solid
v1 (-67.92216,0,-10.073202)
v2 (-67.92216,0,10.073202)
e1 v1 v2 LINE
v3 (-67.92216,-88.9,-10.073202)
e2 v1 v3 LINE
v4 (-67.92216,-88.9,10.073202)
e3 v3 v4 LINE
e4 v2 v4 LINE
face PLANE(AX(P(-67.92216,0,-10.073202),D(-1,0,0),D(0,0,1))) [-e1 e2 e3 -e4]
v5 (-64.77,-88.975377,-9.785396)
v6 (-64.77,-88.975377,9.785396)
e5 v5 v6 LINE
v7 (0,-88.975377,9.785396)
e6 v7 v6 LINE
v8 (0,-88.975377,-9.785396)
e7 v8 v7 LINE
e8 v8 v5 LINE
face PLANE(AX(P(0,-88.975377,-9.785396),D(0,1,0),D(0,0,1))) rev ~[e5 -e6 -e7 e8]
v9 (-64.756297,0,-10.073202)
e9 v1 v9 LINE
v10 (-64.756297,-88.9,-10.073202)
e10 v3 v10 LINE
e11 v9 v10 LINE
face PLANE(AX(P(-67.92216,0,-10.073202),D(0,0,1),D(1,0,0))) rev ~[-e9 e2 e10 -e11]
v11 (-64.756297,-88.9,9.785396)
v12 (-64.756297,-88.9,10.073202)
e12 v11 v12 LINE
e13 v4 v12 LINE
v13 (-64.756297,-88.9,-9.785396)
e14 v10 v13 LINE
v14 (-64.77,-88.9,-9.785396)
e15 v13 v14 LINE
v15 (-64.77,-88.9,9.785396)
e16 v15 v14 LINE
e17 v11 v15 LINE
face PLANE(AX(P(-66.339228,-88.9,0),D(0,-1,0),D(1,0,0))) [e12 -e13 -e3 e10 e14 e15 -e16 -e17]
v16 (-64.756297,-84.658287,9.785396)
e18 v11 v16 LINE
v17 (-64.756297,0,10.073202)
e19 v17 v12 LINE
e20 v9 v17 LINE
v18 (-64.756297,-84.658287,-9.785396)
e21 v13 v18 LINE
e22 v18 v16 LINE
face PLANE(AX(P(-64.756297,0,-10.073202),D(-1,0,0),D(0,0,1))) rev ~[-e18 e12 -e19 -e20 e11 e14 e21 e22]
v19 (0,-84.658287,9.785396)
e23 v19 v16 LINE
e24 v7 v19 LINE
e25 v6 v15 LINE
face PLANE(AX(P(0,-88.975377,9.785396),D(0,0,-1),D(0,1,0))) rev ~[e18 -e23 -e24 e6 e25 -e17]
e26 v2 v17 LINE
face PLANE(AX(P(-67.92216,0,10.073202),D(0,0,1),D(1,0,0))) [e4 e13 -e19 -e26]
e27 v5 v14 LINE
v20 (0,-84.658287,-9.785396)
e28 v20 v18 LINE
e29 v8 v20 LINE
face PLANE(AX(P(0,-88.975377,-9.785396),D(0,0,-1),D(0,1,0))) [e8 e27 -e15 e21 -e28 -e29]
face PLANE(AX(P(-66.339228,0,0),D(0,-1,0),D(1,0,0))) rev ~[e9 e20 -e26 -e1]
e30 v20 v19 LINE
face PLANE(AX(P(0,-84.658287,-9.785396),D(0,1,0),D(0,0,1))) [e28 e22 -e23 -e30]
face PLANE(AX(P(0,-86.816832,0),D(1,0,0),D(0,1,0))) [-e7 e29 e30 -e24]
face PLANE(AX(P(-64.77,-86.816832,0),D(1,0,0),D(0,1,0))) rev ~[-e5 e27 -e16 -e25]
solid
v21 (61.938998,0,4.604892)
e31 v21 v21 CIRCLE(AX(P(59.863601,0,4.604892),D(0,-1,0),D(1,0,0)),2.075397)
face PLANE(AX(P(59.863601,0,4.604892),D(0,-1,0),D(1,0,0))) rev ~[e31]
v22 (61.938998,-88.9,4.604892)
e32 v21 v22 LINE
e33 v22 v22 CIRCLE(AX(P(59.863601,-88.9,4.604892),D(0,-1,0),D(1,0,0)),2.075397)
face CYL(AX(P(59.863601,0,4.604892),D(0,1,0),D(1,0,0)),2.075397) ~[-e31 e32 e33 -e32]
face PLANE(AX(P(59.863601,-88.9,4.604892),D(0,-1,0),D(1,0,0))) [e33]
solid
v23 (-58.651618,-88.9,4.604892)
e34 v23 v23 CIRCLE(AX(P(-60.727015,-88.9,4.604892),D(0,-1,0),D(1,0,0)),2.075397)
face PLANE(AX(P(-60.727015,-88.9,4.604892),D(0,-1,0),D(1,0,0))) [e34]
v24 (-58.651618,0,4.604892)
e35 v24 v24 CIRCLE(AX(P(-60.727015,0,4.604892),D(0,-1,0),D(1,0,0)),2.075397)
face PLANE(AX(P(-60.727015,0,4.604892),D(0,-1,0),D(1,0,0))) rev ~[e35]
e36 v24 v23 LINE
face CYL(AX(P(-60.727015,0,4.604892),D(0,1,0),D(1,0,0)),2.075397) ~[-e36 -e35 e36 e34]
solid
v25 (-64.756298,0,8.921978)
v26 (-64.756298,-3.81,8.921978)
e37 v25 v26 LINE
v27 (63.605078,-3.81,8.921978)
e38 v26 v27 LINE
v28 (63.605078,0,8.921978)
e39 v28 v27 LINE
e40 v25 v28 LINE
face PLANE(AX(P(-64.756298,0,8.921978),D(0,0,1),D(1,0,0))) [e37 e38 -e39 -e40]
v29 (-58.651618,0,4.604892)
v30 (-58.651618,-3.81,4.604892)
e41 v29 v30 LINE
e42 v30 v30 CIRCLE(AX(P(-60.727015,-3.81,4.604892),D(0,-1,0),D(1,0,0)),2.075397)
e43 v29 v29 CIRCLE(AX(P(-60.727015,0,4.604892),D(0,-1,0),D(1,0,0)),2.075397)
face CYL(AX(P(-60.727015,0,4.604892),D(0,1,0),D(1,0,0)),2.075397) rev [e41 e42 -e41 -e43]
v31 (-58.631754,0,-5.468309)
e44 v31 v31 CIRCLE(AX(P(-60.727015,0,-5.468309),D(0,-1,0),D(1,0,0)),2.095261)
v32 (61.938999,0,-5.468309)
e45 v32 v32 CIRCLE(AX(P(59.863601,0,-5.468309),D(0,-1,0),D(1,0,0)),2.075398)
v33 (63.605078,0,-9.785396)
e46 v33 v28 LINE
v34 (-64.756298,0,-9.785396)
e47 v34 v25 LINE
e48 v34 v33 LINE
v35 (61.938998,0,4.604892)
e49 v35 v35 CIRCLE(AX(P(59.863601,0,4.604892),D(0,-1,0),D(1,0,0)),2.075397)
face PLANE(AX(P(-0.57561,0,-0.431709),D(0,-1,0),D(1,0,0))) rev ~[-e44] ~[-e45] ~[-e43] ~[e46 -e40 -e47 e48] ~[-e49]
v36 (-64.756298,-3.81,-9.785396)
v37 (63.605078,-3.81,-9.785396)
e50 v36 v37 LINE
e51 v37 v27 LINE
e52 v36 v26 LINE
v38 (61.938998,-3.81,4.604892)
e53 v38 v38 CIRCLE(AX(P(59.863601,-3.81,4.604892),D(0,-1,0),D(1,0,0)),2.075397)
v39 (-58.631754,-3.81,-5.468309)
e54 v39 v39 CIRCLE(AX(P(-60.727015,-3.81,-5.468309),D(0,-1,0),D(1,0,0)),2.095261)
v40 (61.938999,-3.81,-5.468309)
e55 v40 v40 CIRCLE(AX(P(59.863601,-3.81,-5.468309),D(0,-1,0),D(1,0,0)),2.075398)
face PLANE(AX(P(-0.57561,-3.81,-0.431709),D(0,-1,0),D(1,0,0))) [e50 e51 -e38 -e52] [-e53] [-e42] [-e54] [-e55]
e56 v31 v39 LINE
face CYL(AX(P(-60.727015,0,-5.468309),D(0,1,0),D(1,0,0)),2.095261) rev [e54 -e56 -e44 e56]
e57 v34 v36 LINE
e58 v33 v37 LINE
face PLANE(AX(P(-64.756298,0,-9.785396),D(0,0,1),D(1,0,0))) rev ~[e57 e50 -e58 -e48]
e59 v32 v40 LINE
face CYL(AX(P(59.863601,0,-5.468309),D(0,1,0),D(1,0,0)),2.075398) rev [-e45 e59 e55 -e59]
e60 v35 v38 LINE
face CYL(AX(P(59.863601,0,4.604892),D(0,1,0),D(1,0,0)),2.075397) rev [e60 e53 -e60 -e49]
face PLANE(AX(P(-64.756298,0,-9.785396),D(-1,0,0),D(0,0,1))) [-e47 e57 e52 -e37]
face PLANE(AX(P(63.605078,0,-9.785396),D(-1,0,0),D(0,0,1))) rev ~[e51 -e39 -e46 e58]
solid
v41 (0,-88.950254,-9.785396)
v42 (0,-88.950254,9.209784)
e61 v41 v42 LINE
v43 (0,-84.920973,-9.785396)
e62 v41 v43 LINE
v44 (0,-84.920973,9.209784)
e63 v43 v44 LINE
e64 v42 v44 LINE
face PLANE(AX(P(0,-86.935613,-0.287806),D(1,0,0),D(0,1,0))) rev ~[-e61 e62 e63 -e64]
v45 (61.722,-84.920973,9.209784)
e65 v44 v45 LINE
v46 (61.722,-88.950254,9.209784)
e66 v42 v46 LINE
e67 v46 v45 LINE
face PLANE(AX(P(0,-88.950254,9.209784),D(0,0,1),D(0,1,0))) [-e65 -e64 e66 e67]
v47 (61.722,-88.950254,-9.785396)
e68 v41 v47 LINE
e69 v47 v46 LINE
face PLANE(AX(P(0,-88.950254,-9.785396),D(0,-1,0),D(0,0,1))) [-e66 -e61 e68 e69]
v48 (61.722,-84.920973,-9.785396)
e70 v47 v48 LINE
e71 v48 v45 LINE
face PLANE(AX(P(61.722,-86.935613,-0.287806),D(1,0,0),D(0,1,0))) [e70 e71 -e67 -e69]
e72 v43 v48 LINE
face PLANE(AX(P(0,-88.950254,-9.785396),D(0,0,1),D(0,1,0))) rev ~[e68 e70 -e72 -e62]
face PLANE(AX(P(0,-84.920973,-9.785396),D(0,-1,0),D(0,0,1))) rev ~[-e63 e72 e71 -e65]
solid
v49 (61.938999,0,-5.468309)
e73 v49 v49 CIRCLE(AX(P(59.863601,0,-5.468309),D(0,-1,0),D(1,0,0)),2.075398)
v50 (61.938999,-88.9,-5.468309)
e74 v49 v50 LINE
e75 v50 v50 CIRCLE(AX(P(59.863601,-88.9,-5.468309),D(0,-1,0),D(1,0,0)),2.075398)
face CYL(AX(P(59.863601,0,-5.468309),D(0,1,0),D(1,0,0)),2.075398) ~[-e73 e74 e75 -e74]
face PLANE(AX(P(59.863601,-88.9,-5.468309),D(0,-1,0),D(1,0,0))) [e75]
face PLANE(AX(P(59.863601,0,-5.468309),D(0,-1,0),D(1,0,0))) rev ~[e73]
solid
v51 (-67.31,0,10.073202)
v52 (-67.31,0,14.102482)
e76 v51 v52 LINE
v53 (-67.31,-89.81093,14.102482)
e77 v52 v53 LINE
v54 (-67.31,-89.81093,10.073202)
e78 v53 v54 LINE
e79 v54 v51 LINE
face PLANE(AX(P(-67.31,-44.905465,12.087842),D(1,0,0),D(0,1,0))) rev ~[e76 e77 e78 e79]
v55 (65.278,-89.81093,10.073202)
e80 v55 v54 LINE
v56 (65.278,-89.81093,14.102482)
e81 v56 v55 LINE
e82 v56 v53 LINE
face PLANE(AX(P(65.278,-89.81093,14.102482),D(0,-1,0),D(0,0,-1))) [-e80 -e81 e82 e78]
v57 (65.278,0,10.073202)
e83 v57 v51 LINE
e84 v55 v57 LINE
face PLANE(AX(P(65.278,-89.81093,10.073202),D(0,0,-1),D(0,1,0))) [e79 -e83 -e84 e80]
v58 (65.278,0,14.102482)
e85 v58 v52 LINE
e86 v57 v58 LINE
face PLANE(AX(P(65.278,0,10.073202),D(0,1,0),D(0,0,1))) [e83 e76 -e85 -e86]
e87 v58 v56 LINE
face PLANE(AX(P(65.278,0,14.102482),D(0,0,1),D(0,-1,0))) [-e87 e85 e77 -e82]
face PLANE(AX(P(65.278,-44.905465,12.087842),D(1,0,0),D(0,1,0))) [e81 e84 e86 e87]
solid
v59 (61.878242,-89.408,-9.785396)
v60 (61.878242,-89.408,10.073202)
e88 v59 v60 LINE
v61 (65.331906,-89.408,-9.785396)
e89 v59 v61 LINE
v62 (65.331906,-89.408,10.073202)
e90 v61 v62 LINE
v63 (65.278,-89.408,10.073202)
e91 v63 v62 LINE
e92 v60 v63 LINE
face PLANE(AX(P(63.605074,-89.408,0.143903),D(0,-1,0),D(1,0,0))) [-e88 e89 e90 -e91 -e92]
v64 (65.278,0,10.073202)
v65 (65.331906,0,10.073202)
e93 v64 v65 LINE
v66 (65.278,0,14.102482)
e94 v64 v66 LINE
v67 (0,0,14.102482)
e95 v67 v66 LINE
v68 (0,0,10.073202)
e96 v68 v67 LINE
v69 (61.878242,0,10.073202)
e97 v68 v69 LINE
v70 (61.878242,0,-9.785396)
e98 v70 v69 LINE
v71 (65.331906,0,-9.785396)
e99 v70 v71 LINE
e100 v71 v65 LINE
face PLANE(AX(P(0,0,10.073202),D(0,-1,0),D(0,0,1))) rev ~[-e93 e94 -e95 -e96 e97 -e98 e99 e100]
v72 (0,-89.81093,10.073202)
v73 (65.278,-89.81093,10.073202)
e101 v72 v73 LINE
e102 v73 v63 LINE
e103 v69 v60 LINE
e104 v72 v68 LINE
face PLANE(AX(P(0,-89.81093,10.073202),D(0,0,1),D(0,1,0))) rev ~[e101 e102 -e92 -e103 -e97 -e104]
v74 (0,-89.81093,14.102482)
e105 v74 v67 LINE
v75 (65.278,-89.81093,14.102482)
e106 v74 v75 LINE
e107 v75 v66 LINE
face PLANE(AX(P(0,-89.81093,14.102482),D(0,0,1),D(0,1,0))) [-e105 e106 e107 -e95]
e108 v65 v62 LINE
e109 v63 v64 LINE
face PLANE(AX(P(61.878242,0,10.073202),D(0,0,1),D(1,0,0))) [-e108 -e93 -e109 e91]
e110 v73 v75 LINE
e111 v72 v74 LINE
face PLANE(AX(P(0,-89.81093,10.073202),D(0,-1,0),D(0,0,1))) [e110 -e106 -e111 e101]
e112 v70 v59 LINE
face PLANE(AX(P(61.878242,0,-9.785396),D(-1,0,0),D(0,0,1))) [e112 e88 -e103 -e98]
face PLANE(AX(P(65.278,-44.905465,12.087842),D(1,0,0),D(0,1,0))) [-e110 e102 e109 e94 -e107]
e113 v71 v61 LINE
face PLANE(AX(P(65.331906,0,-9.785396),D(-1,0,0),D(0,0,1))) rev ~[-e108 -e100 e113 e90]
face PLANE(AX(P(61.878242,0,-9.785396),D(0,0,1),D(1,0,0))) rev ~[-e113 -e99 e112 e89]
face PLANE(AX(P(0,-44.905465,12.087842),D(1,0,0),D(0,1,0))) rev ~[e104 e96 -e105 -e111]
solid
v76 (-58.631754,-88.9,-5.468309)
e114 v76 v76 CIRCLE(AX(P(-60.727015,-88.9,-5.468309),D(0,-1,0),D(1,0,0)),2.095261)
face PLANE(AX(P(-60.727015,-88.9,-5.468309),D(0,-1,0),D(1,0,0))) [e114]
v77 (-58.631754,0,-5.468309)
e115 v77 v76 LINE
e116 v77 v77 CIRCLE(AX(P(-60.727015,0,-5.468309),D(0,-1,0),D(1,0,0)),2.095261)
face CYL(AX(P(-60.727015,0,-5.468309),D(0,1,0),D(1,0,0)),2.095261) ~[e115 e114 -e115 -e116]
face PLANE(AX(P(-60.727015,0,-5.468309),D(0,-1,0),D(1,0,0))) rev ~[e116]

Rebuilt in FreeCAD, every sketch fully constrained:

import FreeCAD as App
import Part
import Sketcher

V = App.Vector


def add_polygon(sketch, points):
    """Adds a closed chain of lines whose ends are joined by coincident constraints."""
    first, n = sketch.GeometryCount, len(points)
    for a, b in zip(points, points[1:] + points[:1]):
        sketch.addGeometry(Part.LineSegment(App.Vector(*a, 0), App.Vector(*b, 0)), False)
    for i in range(n):
        sketch.addConstraint(Sketcher.Constraint("Coincident", first + i, 2, first + (i + 1) % n, 1))

doc = App.newDocument("Part")
params = doc.addObject("Spreadsheet::Sheet", "Params")
for row, (alias, value) in enumerate([
    ("pad1_length", "3.5 in"),
    ("pad2_length", "2.43 in"),
    ("pad3_length", "2.55 in"),
    ("pad4_length", "3.5 in"),
    ("pad5_length", "3.52 in"),
    ("pad6_length", "2.57 in"),
    ("pad7_length", "0.15 in"),
    ("pad8_length", "5.22 in"),
], start=1):
    params.set(f"A{row}", alias)
    params.set(f"B{row}", "=" + value)
    params.setAlias(f"B{row}", alias)

body = doc.addObject("PartDesign::Body", "Body")
body.AllowCompound = True

# Sketch on XZ plane
sketch1 = body.newObject("Sketcher::SketchObject", "Sketch")
sketch1.AttachmentSupport = (doc.getObject("XZ_Plane"), [""])
sketch1.MapMode = "FlatFace"
sketch1.addGeometry(Part.Circle(V(-60.727015, -5.468309, 0), V(0, 0, 1), 2.095261), False)
sketch1.addGeometry(Part.Circle(V(-60.727015, 4.604892, 0), V(0, 0, 1), 2.075397), False)
sketch1.addGeometry(Part.Circle(V(59.863601, 4.604892, 0), V(0, 0, 1), 2.075397), False)
sketch1.addGeometry(Part.Circle(V(59.863601, -5.468309, 0), V(0, 0, 1), 2.075398), False)
sketch1.addConstraint(Sketcher.Constraint("Equal", 1, 2))
sketch1.addConstraint(Sketcher.Constraint("Equal", 2, 3))
sketch1.addConstraint(Sketcher.Constraint("Horizontal", 1, 3, 2, 3))
sketch1.addConstraint(Sketcher.Constraint("Horizontal", 0, 3, 3, 3))
sketch1.addConstraint(Sketcher.Constraint("Vertical", 0, 3, 1, 3))
sketch1.addConstraint(Sketcher.Constraint("Vertical", 2, 3, 3, 3))
sketch1.addConstraint(Sketcher.Constraint("Diameter", 0, 4.190522))
sketch1.addConstraint(Sketcher.Constraint("Diameter", 1, 4.150794))
sketch1.addConstraint(Sketcher.Constraint("DistanceX", -1, 1, 2, 3, 59.863601))
sketch1.addConstraint(Sketcher.Constraint("DistanceY", 0, 3, 1, 3, 10.073201))
sketch1.addConstraint(Sketcher.Constraint("DistanceY", 0, 3, -1, 1, 5.468309))
sketch1.addConstraint(Sketcher.Constraint("DistanceX", 0, 3, -1, 1, 60.727015))
pad1 = body.newObject("PartDesign::Pad", "Pad")
pad1.Profile = sketch1
pad1.setExpression("Length", "Params.pad1_length")
body2 = doc.addObject("PartDesign::Body", "Body001")

# Sketch on YZ plane
sketch2 = body2.newObject("Sketcher::SketchObject", "Sketch001")
sketch2.AttachmentSupport = (doc.getObject("YZ_Plane001"), [""])
sketch2.MapMode = "FlatFace"
add_polygon(sketch2, [(-88.950254, 9.209784), (-88.950254, -9.785396), (-84.920973, -9.785396), (-84.920973, 9.209784)])  # lines 0-3
sketch2.addConstraint(Sketcher.Constraint("Vertical", 0))
sketch2.addConstraint(Sketcher.Constraint("Horizontal", 1))
sketch2.addConstraint(Sketcher.Constraint("Vertical", 2))
sketch2.addConstraint(Sketcher.Constraint("Horizontal", 3))
sketch2.addConstraint(Sketcher.Constraint("DistanceX", 1, 1, 1, 2, 4.029281))
sketch2.addConstraint(Sketcher.Constraint("DistanceY", 0, 2, 0, 1, 18.995181))
sketch2.addConstraint(Sketcher.Constraint("DistanceX", 0, 2, -1, 1, 88.950254))
sketch2.addConstraint(Sketcher.Constraint("DistanceY", 0, 2, -1, 1, 9.785396))
pad2 = body2.newObject("PartDesign::Pad", "Pad001")
pad2.Profile = sketch2
pad2.setExpression("Length", "Params.pad2_length")
body3 = doc.addObject("PartDesign::Body", "Body002")

# Sketch on YZ plane
sketch3 = body3.newObject("Sketcher::SketchObject", "Sketch002")
sketch3.AttachmentSupport = (doc.getObject("YZ_Plane002"), [""])
sketch3.MapMode = "FlatFace"
add_polygon(sketch3, [(-88.975377, 9.785396), (-88.975377, -9.785396), (-84.658287, -9.785396), (-84.658287, 9.785396)])  # lines 0-3
sketch3.addConstraint(Sketcher.Constraint("Vertical", 0))
sketch3.addConstraint(Sketcher.Constraint("Horizontal", 1))
sketch3.addConstraint(Sketcher.Constraint("Vertical", 2))
sketch3.addConstraint(Sketcher.Constraint("Horizontal", 3))
sketch3.addConstraint(Sketcher.Constraint("DistanceX", 1, 1, 1, 2, 4.31709))
sketch3.addConstraint(Sketcher.Constraint("DistanceY", 0, 2, 0, 1, 19.570792))
sketch3.addConstraint(Sketcher.Constraint("DistanceX", 0, 2, -1, 1, 88.975377))
sketch3.addConstraint(Sketcher.Constraint("DistanceY", 0, 2, -1, 1, 9.785396))
pad3 = body3.newObject("PartDesign::Pad", "Pad002")
pad3.Profile = sketch3
pad3.setExpression("Length", "Params.pad3_length")
pad3.Reversed = True

# Sketch on XZ plane
sketch4 = body3.newObject("Sketcher::SketchObject", "Sketch003")
sketch4.AttachmentSupport = (doc.getObject("XZ_Plane002"), [""])
sketch4.MapMode = "FlatFace"
add_polygon(sketch4, [(-67.92216, 10.073202), (-67.92216, -10.073202), (-64.756297, -10.073202), (-64.756297, 10.073202)])  # lines 0-3
sketch4.addConstraint(Sketcher.Constraint("Vertical", 0))
sketch4.addConstraint(Sketcher.Constraint("Horizontal", 1))
sketch4.addConstraint(Sketcher.Constraint("Vertical", 2))
sketch4.addConstraint(Sketcher.Constraint("Horizontal", 3))
sketch4.addConstraint(Sketcher.Constraint("DistanceX", 1, 1, 1, 2, 3.165863))
sketch4.addConstraint(Sketcher.Constraint("DistanceY", 0, 2, 0, 1, 20.146404))
sketch4.addConstraint(Sketcher.Constraint("DistanceX", 0, 2, -1, 1, 67.92216))
sketch4.addConstraint(Sketcher.Constraint("DistanceY", 0, 2, -1, 1, 10.073202))
pad4 = body3.newObject("PartDesign::Pad", "Pad003")
pad4.Profile = sketch4
pad4.setExpression("Length", "Params.pad4_length")
body4 = doc.addObject("PartDesign::Body", "Body003")

# Sketch on XZ plane
sketch5 = body4.newObject("Sketcher::SketchObject", "Sketch004")
sketch5.AttachmentSupport = (doc.getObject("XZ_Plane003"), [""])
sketch5.MapMode = "FlatFace"
add_polygon(sketch5, [(61.878242, 10.073202), (61.878242, -9.785396), (65.331906, -9.785396), (65.331906, 10.073202)])  # lines 0-3
sketch5.addConstraint(Sketcher.Constraint("Vertical", 0))
sketch5.addConstraint(Sketcher.Constraint("Horizontal", 1))
sketch5.addConstraint(Sketcher.Constraint("Vertical", 2))
sketch5.addConstraint(Sketcher.Constraint("Horizontal", 3))
sketch5.addConstraint(Sketcher.Constraint("DistanceY", 0, 2, 0, 1, 19.858598))
sketch5.addConstraint(Sketcher.Constraint("DistanceX", 1, 1, 1, 2, 3.453664))
sketch5.addConstraint(Sketcher.Constraint("DistanceX", -1, 1, 0, 2, 61.878242))
sketch5.addConstraint(Sketcher.Constraint("DistanceY", 0, 2, -1, 1, 9.785396))
pad5 = body4.newObject("PartDesign::Pad", "Pad004")
pad5.Profile = sketch5
pad5.setExpression("Length", "Params.pad5_length")

# Sketch on YZ plane
sketch6 = body4.newObject("Sketcher::SketchObject", "Sketch005")
sketch6.AttachmentSupport = (doc.getObject("YZ_Plane003"), [""])
sketch6.MapMode = "FlatFace"
add_polygon(sketch6, [(-89.81093, 14.102482), (-89.81093, 10.073202), (0, 10.073202), (0, 14.102482)])  # lines 0-3
sketch6.addConstraint(Sketcher.Constraint("Vertical", 0))
sketch6.addConstraint(Sketcher.Constraint("Horizontal", 1))
sketch6.addConstraint(Sketcher.Constraint("Vertical", 2))
sketch6.addConstraint(Sketcher.Constraint("Horizontal", 3))
sketch6.addConstraint(Sketcher.Constraint("PointOnObject", 1, 2, -2))
sketch6.addConstraint(Sketcher.Constraint("DistanceX", 1, 1, 1, 2, 89.81093))
sketch6.addConstraint(Sketcher.Constraint("DistanceY", 0, 2, 0, 1, 4.02928))
sketch6.addConstraint(Sketcher.Constraint("DistanceY", -1, 1, 0, 2, 10.073202))
pad6 = body4.newObject("PartDesign::Pad", "Pad005")
pad6.Profile = sketch6
pad6.setExpression("Length", "Params.pad6_length")
body5 = doc.addObject("PartDesign::Body", "Body004")

# Sketch on XZ plane
sketch7 = body5.newObject("Sketcher::SketchObject", "Sketch006")
sketch7.AttachmentSupport = (doc.getObject("XZ_Plane004"), [""])
sketch7.MapMode = "FlatFace"
add_polygon(sketch7, [(-64.756298, 8.921978), (-64.756298, -9.785396), (63.605078, -9.785396), (63.605078, 8.921978)])  # lines 0-3
sketch7.addGeometry(Part.Circle(V(-60.727015, -5.468309, 0), V(0, 0, 1), 2.095261), False)  # 4
sketch7.addGeometry(Part.Circle(V(59.863601, -5.468309, 0), V(0, 0, 1), 2.075398), False)  # 5
sketch7.addGeometry(Part.Circle(V(-60.727015, 4.604892, 0), V(0, 0, 1), 2.075397), False)  # 6
sketch7.addGeometry(Part.Circle(V(59.863601, 4.604892, 0), V(0, 0, 1), 2.075397), False)  # 7
sketch7.addConstraint(Sketcher.Constraint("Vertical", 0))
sketch7.addConstraint(Sketcher.Constraint("Horizontal", 1))
sketch7.addConstraint(Sketcher.Constraint("Vertical", 2))
sketch7.addConstraint(Sketcher.Constraint("Horizontal", 3))
sketch7.addConstraint(Sketcher.Constraint("Equal", 5, 6))
sketch7.addConstraint(Sketcher.Constraint("Equal", 6, 7))
sketch7.addConstraint(Sketcher.Constraint("Horizontal", 4, 3, 5, 3))
sketch7.addConstraint(Sketcher.Constraint("Horizontal", 6, 3, 7, 3))
sketch7.addConstraint(Sketcher.Constraint("Vertical", 4, 3, 6, 3))
sketch7.addConstraint(Sketcher.Constraint("Vertical", 5, 3, 7, 3))
sketch7.addConstraint(Sketcher.Constraint("Diameter", 4, 4.190522))
sketch7.addConstraint(Sketcher.Constraint("Diameter", 5, 4.150796))
sketch7.addConstraint(Sketcher.Constraint("DistanceX", -1, 1, 5, 3, 59.863601))
sketch7.addConstraint(Sketcher.Constraint("DistanceY", 4, 3, 6, 3, 10.073201))
sketch7.addConstraint(Sketcher.Constraint("DistanceX", 0, 2, 5, 3, 124.619899))
sketch7.addConstraint(Sketcher.Constraint("DistanceX", 1, 1, 1, 2, 128.361375))
sketch7.addConstraint(Sketcher.Constraint("DistanceY", 0, 2, 0, 1, 18.707374))
sketch7.addConstraint(Sketcher.Constraint("DistanceY", 4, 3, -1, 1, 5.468309))
sketch7.addConstraint(Sketcher.Constraint("DistanceY", 0, 2, 6, 3, 14.390288))
sketch7.addConstraint(Sketcher.Constraint("DistanceX", 4, 3, -1, 1, 60.727015))
pad7 = body5.newObject("PartDesign::Pad", "Pad006")
pad7.Profile = sketch7
pad7.setExpression("Length", "Params.pad7_length")
body6 = doc.addObject("PartDesign::Body", "Body005")

# Sketch on YZ plane
sketch8 = body6.newObject("Sketcher::SketchObject", "Sketch007")
sketch8.AttachmentSupport = (doc.getObject("YZ_Plane005"), [""])
sketch8.MapMode = "FlatFace"
sketch8.AttachmentOffset = App.Placement(V(0, 0, 2.57 * 25.4), App.Rotation())
add_polygon(sketch8, [(0, 14.102482), (-89.81093, 14.102482), (-89.81093, 10.073202), (0, 10.073202)])  # lines 0-3
sketch8.addConstraint(Sketcher.Constraint("Horizontal", 0))
sketch8.addConstraint(Sketcher.Constraint("Vertical", 1))
sketch8.addConstraint(Sketcher.Constraint("Horizontal", 2))
sketch8.addConstraint(Sketcher.Constraint("Vertical", 3))
sketch8.addConstraint(Sketcher.Constraint("PointOnObject", 2, 2, -2))
sketch8.addConstraint(Sketcher.Constraint("DistanceX", 0, 2, 0, 1, 89.81093))
sketch8.addConstraint(Sketcher.Constraint("DistanceY", 1, 2, 1, 1, 4.02928))
sketch8.addConstraint(Sketcher.Constraint("DistanceY", -1, 1, 0, 2, 14.102482))
pad8 = body6.newObject("PartDesign::Pad", "Pad007")
pad8.Profile = sketch8
pad8.setExpression("Length", "Params.pad8_length")
pad8.Reversed = True

doc.recompute()
